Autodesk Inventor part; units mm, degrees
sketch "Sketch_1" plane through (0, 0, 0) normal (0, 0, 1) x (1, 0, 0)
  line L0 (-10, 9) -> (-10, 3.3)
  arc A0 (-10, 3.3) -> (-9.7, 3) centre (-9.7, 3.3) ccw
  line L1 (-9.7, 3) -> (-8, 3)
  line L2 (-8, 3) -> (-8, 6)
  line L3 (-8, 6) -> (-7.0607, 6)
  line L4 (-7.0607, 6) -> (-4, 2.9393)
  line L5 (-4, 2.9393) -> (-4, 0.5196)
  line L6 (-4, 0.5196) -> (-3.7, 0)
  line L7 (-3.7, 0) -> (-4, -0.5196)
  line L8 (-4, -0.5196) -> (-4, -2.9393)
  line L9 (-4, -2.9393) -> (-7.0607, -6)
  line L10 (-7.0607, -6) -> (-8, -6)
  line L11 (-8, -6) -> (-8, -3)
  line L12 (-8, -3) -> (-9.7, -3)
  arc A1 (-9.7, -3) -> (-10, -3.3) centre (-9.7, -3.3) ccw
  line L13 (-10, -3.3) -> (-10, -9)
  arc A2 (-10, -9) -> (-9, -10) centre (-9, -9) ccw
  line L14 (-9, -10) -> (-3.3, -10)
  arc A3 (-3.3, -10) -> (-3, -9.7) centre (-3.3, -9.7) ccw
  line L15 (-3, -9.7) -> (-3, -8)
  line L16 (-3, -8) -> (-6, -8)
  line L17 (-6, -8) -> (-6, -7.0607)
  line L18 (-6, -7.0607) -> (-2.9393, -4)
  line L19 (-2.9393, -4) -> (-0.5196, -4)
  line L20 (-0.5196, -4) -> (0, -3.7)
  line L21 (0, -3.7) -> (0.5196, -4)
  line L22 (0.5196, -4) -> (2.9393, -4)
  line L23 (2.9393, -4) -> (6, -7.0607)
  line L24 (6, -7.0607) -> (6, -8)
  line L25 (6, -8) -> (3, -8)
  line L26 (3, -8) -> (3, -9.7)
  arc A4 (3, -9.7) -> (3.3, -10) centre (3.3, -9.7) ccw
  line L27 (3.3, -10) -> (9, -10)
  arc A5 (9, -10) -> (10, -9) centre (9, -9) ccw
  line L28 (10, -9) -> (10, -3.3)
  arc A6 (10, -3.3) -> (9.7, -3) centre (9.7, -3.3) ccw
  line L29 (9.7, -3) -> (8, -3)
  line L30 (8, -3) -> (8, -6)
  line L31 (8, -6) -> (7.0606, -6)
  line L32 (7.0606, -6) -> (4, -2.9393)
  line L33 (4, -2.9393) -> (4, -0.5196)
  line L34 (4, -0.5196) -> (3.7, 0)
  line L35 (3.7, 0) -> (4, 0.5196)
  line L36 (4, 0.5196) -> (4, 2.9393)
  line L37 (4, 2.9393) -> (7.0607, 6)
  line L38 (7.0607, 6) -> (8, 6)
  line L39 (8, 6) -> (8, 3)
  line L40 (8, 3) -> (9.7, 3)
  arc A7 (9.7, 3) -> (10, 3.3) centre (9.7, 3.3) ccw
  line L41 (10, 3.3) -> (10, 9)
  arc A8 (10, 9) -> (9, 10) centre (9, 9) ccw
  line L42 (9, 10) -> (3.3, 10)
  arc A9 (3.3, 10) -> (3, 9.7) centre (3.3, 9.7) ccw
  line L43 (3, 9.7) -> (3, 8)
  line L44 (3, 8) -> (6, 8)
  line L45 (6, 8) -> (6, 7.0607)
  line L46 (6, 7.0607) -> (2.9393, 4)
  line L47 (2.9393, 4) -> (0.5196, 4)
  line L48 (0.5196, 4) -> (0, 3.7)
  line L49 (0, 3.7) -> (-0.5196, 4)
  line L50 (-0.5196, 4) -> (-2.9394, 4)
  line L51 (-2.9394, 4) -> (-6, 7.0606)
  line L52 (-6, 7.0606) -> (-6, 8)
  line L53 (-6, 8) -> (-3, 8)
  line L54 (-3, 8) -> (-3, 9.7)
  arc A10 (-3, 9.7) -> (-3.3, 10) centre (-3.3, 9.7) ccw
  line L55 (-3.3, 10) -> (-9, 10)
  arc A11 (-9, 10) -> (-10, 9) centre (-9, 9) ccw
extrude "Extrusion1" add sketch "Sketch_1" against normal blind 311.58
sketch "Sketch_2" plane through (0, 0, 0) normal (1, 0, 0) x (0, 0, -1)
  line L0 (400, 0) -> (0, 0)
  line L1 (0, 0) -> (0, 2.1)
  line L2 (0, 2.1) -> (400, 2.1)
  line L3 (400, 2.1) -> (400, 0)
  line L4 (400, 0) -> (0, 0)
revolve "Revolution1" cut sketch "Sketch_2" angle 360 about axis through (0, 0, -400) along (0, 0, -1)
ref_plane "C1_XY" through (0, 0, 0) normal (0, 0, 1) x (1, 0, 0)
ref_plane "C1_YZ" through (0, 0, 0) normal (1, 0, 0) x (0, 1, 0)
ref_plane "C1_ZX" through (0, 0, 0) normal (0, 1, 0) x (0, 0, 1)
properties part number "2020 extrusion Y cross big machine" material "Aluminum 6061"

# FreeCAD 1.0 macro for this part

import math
import FreeCAD as App
import Part
import Sketcher
from FreeCAD import Vector
Q = App.Units.Quantity

doc = App.newDocument("Part")
body = doc.addObject("PartDesign::Body", "Body")

sketch1 = doc.addObject("Sketcher::SketchObject", "Sketch")
body.addObject(sketch1)
sketch1.AttachmentSupport = (doc.XY_Plane, [""])
sketch1.MapMode = "FlatFace"
sketch1.addGeometry(Part.ArcOfCircle(Part.Circle(Vector(-9, 9, 0), Vector(0, 0, 1), 1), math.radians(90), math.radians(180)), False)
sketch1.addGeometry(Part.LineSegment(Vector(-10, 9, 0), Vector(-10, 3.3, 0)), False)
sketch1.addGeometry(Part.ArcOfCircle(Part.Circle(Vector(-9.7, 3.3, 0), Vector(0, 0, 1), 0.3), math.radians(180), math.radians(270)), False)
sketch1.addGeometry(Part.LineSegment(Vector(-9.7, 3, 0), Vector(-8, 3, 0)), False)
sketch1.addGeometry(Part.LineSegment(Vector(-8, 3, 0), Vector(-8, 6, 0)), False)
sketch1.addGeometry(Part.LineSegment(Vector(-8, 6, 0), Vector(-7.06, 6, 0)), False)
sketch1.addGeometry(Part.LineSegment(Vector(-7.06, 6, 0), Vector(-4, 2.94, 0)), False)
sketch1.addGeometry(Part.LineSegment(Vector(-4, 2.94, 0), Vector(-4, 0.52, 0)), False)
sketch1.addGeometry(Part.LineSegment(Vector(-4, 0.52, 0), Vector(-3.7, 0, 0)), False)
sketch1.addGeometry(Part.LineSegment(Vector(-3.7, 0, 0), Vector(-4, -0.52, 0)), False)
sketch1.addGeometry(Part.LineSegment(Vector(-4, -0.52, 0), Vector(-4, -2.94, 0)), False)
sketch1.addGeometry(Part.LineSegment(Vector(-4, -2.94, 0), Vector(-7.06, -6, 0)), False)
sketch1.addGeometry(Part.LineSegment(Vector(-7.06, -6, 0), Vector(-8, -6, 0)), False)
sketch1.addGeometry(Part.LineSegment(Vector(-8, -6, 0), Vector(-8, -3, 0)), False)
sketch1.addGeometry(Part.LineSegment(Vector(-8, -3, 0), Vector(-9.7, -3, 0)), False)
sketch1.addGeometry(Part.ArcOfCircle(Part.Circle(Vector(-9.7, -3.3, 0), Vector(0, 0, 1), 0.3), math.radians(90), math.radians(180)), False)
sketch1.addGeometry(Part.LineSegment(Vector(-10, -3.3, 0), Vector(-10, -9, 0)), False)
sketch1.addGeometry(Part.ArcOfCircle(Part.Circle(Vector(-9, -9, 0), Vector(0, 0, 1), 1), math.radians(180), math.radians(270)), False)
sketch1.addGeometry(Part.LineSegment(Vector(-9, -10, 0), Vector(-3.3, -10, 0)), False)
sketch1.addGeometry(Part.ArcOfCircle(Part.Circle(Vector(-3.3, -9.7, 0), Vector(0, 0, 1), 0.3), math.radians(-90), math.radians(0)), False)
sketch1.addGeometry(Part.LineSegment(Vector(-3, -9.7, 0), Vector(-3, -8, 0)), False)
sketch1.addGeometry(Part.LineSegment(Vector(-3, -8, 0), Vector(-6, -8, 0)), False)
sketch1.addGeometry(Part.LineSegment(Vector(-6, -8, 0), Vector(-6, -7.06, 0)), False)
sketch1.addGeometry(Part.LineSegment(Vector(-6, -7.06, 0), Vector(-2.94, -4, 0)), False)
sketch1.addGeometry(Part.LineSegment(Vector(-2.94, -4, 0), Vector(-0.52, -4, 0)), False)
sketch1.addGeometry(Part.LineSegment(Vector(-0.52, -4, 0), Vector(0, -3.7, 0)), False)
sketch1.addGeometry(Part.LineSegment(Vector(0, -3.7, 0), Vector(0.52, -4, 0)), False)
sketch1.addGeometry(Part.LineSegment(Vector(0.52, -4, 0), Vector(2.94, -4, 0)), False)
sketch1.addGeometry(Part.LineSegment(Vector(2.94, -4, 0), Vector(6, -7.06, 0)), False)
sketch1.addGeometry(Part.LineSegment(Vector(6, -7.06, 0), Vector(6, -8, 0)), False)
sketch1.addGeometry(Part.LineSegment(Vector(6, -8, 0), Vector(3, -8, 0)), False)
sketch1.addGeometry(Part.LineSegment(Vector(3, -8, 0), Vector(3, -9.7, 0)), False)
sketch1.addGeometry(Part.ArcOfCircle(Part.Circle(Vector(3.3, -9.7, 0), Vector(0, 0, 1), 0.3), math.radians(180), math.radians(270)), False)
sketch1.addGeometry(Part.LineSegment(Vector(3.3, -10, 0), Vector(9, -10, 0)), False)
sketch1.addGeometry(Part.ArcOfCircle(Part.Circle(Vector(9, -9, 0), Vector(0, 0, 1), 1), math.radians(-90), math.radians(0)), False)
sketch1.addGeometry(Part.LineSegment(Vector(10, -9, 0), Vector(10, -3.3, 0)), False)
sketch1.addGeometry(Part.ArcOfCircle(Part.Circle(Vector(9.7, -3.3, 0), Vector(0, 0, 1), 0.3), math.radians(0), math.radians(90)), False)
sketch1.addGeometry(Part.LineSegment(Vector(9.7, -3, 0), Vector(8, -3, 0)), False)
sketch1.addGeometry(Part.LineSegment(Vector(8, -3, 0), Vector(8, -6, 0)), False)
sketch1.addGeometry(Part.LineSegment(Vector(8, -6, 0), Vector(7.06, -6, 0)), False)
sketch1.addGeometry(Part.LineSegment(Vector(7.06, -6, 0), Vector(4, -2.94, 0)), False)
sketch1.addGeometry(Part.LineSegment(Vector(4, -2.94, 0), Vector(4, -0.52, 0)), False)
sketch1.addGeometry(Part.LineSegment(Vector(4, -0.52, 0), Vector(3.7, 0, 0)), False)
sketch1.addGeometry(Part.LineSegment(Vector(3.7, 0, 0), Vector(4, 0.52, 0)), False)
sketch1.addGeometry(Part.LineSegment(Vector(4, 0.52, 0), Vector(4, 2.94, 0)), False)
sketch1.addGeometry(Part.LineSegment(Vector(4, 2.94, 0), Vector(7.06, 6, 0)), False)
sketch1.addGeometry(Part.LineSegment(Vector(7.06, 6, 0), Vector(8, 6, 0)), False)
sketch1.addGeometry(Part.LineSegment(Vector(8, 6, 0), Vector(8, 3, 0)), False)
sketch1.addGeometry(Part.LineSegment(Vector(8, 3, 0), Vector(9.7, 3, 0)), False)
sketch1.addGeometry(Part.ArcOfCircle(Part.Circle(Vector(9.7, 3.3, 0), Vector(0, 0, 1), 0.3), math.radians(-90), math.radians(0)), False)
sketch1.addGeometry(Part.LineSegment(Vector(10, 3.3, 0), Vector(10, 9, 0)), False)
sketch1.addGeometry(Part.ArcOfCircle(Part.Circle(Vector(9, 9, 0), Vector(0, 0, 1), 1), math.radians(0), math.radians(90)), False)
sketch1.addGeometry(Part.LineSegment(Vector(9, 10, 0), Vector(3.3, 10, 0)), False)
sketch1.addGeometry(Part.ArcOfCircle(Part.Circle(Vector(3.3, 9.7, 0), Vector(0, 0, 1), 0.3), math.radians(90), math.radians(180)), False)
sketch1.addGeometry(Part.LineSegment(Vector(3, 9.7, 0), Vector(3, 8, 0)), False)
sketch1.addGeometry(Part.LineSegment(Vector(3, 8, 0), Vector(6, 8, 0)), False)
sketch1.addGeometry(Part.LineSegment(Vector(6, 8, 0), Vector(6, 7.06, 0)), False)
sketch1.addGeometry(Part.LineSegment(Vector(6, 7.06, 0), Vector(2.94, 4, 0)), False)
sketch1.addGeometry(Part.LineSegment(Vector(2.94, 4, 0), Vector(0.52, 4, 0)), False)
sketch1.addGeometry(Part.LineSegment(Vector(0.52, 4, 0), Vector(0, 3.7, 0)), False)
sketch1.addGeometry(Part.LineSegment(Vector(0, 3.7, 0), Vector(-0.52, 4, 0)), False)
sketch1.addGeometry(Part.LineSegment(Vector(-0.52, 4, 0), Vector(-2.94, 4, 0)), False)
sketch1.addGeometry(Part.LineSegment(Vector(-2.94, 4, 0), Vector(-6, 7.06, 0)), False)
sketch1.addGeometry(Part.LineSegment(Vector(-6, 7.06, 0), Vector(-6, 8, 0)), False)
sketch1.addGeometry(Part.LineSegment(Vector(-6, 8, 0), Vector(-3, 8, 0)), False)
sketch1.addGeometry(Part.LineSegment(Vector(-3, 8, 0), Vector(-3, 9.7, 0)), False)
sketch1.addGeometry(Part.ArcOfCircle(Part.Circle(Vector(-3.3, 9.7, 0), Vector(0, 0, 1), 0.3), math.radians(0), math.radians(90)), False)
sketch1.addGeometry(Part.LineSegment(Vector(-3.3, 10, 0), Vector(-9, 10, 0)), False)
sketch1.addConstraint(Sketcher.Constraint("Tangent", 0, 2, 1, 1))
sketch1.addConstraint(Sketcher.Constraint("Tangent", 1, 2, 2, 1))
sketch1.addConstraint(Sketcher.Constraint("Tangent", 2, 2, 3, 1))
sketch1.addConstraint(Sketcher.Constraint("Coincident", 3, 2, 4, 1))
sketch1.addConstraint(Sketcher.Constraint("Coincident", 4, 2, 5, 1))
sketch1.addConstraint(Sketcher.Constraint("Coincident", 5, 2, 6, 1))
sketch1.addConstraint(Sketcher.Constraint("Coincident", 6, 2, 7, 1))
sketch1.addConstraint(Sketcher.Constraint("Coincident", 7, 2, 8, 1))
sketch1.addConstraint(Sketcher.Constraint("Coincident", 8, 2, 9, 1))
sketch1.addConstraint(Sketcher.Constraint("Coincident", 9, 2, 10, 1))
sketch1.addConstraint(Sketcher.Constraint("Coincident", 10, 2, 11, 1))
sketch1.addConstraint(Sketcher.Constraint("Coincident", 11, 2, 12, 1))
sketch1.addConstraint(Sketcher.Constraint("Coincident", 12, 2, 13, 1))
sketch1.addConstraint(Sketcher.Constraint("Coincident", 13, 2, 14, 1))
sketch1.addConstraint(Sketcher.Constraint("Tangent", 14, 2, 15, 1))
sketch1.addConstraint(Sketcher.Constraint("Tangent", 15, 2, 16, 1))
sketch1.addConstraint(Sketcher.Constraint("Tangent", 16, 2, 17, 1))
sketch1.addConstraint(Sketcher.Constraint("Tangent", 17, 2, 18, 1))
sketch1.addConstraint(Sketcher.Constraint("Tangent", 18, 2, 19, 1))
sketch1.addConstraint(Sketcher.Constraint("Tangent", 19, 2, 20, 1))
sketch1.addConstraint(Sketcher.Constraint("Coincident", 20, 2, 21, 1))
sketch1.addConstraint(Sketcher.Constraint("Coincident", 21, 2, 22, 1))
sketch1.addConstraint(Sketcher.Constraint("Coincident", 22, 2, 23, 1))
sketch1.addConstraint(Sketcher.Constraint("Coincident", 23, 2, 24, 1))
sketch1.addConstraint(Sketcher.Constraint("Coincident", 24, 2, 25, 1))
sketch1.addConstraint(Sketcher.Constraint("Coincident", 25, 2, 26, 1))
sketch1.addConstraint(Sketcher.Constraint("Coincident", 26, 2, 27, 1))
sketch1.addConstraint(Sketcher.Constraint("Coincident", 27, 2, 28, 1))
sketch1.addConstraint(Sketcher.Constraint("Coincident", 28, 2, 29, 1))
sketch1.addConstraint(Sketcher.Constraint("Coincident", 29, 2, 30, 1))
sketch1.addConstraint(Sketcher.Constraint("Coincident", 30, 2, 31, 1))
sketch1.addConstraint(Sketcher.Constraint("Tangent", 31, 2, 32, 1))
sketch1.addConstraint(Sketcher.Constraint("Tangent", 32, 2, 33, 1))
sketch1.addConstraint(Sketcher.Constraint("Tangent", 33, 2, 34, 1))
sketch1.addConstraint(Sketcher.Constraint("Tangent", 34, 2, 35, 1))
sketch1.addConstraint(Sketcher.Constraint("Tangent", 35, 2, 36, 1))
sketch1.addConstraint(Sketcher.Constraint("Tangent", 36, 2, 37, 1))
sketch1.addConstraint(Sketcher.Constraint("Coincident", 37, 2, 38, 1))
sketch1.addConstraint(Sketcher.Constraint("Coincident", 38, 2, 39, 1))
sketch1.addConstraint(Sketcher.Constraint("Coincident", 39, 2, 40, 1))
sketch1.addConstraint(Sketcher.Constraint("Coincident", 40, 2, 41, 1))
sketch1.addConstraint(Sketcher.Constraint("Coincident", 41, 2, 42, 1))
sketch1.addConstraint(Sketcher.Constraint("Coincident", 42, 2, 43, 1))
sketch1.addConstraint(Sketcher.Constraint("Coincident", 43, 2, 44, 1))
sketch1.addConstraint(Sketcher.Constraint("Coincident", 44, 2, 45, 1))
sketch1.addConstraint(Sketcher.Constraint("Coincident", 45, 2, 46, 1))
sketch1.addConstraint(Sketcher.Constraint("Coincident", 46, 2, 47, 1))
sketch1.addConstraint(Sketcher.Constraint("Coincident", 47, 2, 48, 1))
sketch1.addConstraint(Sketcher.Constraint("Tangent", 48, 2, 49, 1))
sketch1.addConstraint(Sketcher.Constraint("Tangent", 49, 2, 50, 1))
sketch1.addConstraint(Sketcher.Constraint("Tangent", 50, 2, 51, 1))
sketch1.addConstraint(Sketcher.Constraint("Tangent", 51, 2, 52, 1))
sketch1.addConstraint(Sketcher.Constraint("Tangent", 52, 2, 53, 1))
sketch1.addConstraint(Sketcher.Constraint("Tangent", 53, 2, 54, 1))
sketch1.addConstraint(Sketcher.Constraint("Coincident", 54, 2, 55, 1))
sketch1.addConstraint(Sketcher.Constraint("Coincident", 55, 2, 56, 1))
sketch1.addConstraint(Sketcher.Constraint("Coincident", 56, 2, 57, 1))
sketch1.addConstraint(Sketcher.Constraint("Coincident", 57, 2, 58, 1))
sketch1.addConstraint(Sketcher.Constraint("Coincident", 58, 2, 59, 1))
sketch1.addConstraint(Sketcher.Constraint("Coincident", 59, 2, 60, 1))
sketch1.addConstraint(Sketcher.Constraint("Coincident", 60, 2, 61, 1))
sketch1.addConstraint(Sketcher.Constraint("Coincident", 61, 2, 62, 1))
sketch1.addConstraint(Sketcher.Constraint("Coincident", 62, 2, 63, 1))
sketch1.addConstraint(Sketcher.Constraint("Coincident", 63, 2, 64, 1))
sketch1.addConstraint(Sketcher.Constraint("Coincident", 64, 2, 65, 1))
sketch1.addConstraint(Sketcher.Constraint("Tangent", 65, 2, 66, 1))
sketch1.addConstraint(Sketcher.Constraint("Tangent", 66, 2, 67, 1))
sketch1.addConstraint(Sketcher.Constraint("Tangent", 67, 2, 0, 1))
sketch1.addConstraint(Sketcher.Constraint("Vertical", 1))
sketch1.addConstraint(Sketcher.Constraint("Horizontal", 3))
sketch1.addConstraint(Sketcher.Constraint("Vertical", 4))
sketch1.addConstraint(Sketcher.Constraint("Horizontal", 5))
sketch1.addConstraint(Sketcher.Constraint("Vertical", 7))
sketch1.addConstraint(Sketcher.Constraint("Vertical", 10))
sketch1.addConstraint(Sketcher.Constraint("Horizontal", 12))
sketch1.addConstraint(Sketcher.Constraint("Vertical", 13))
sketch1.addConstraint(Sketcher.Constraint("Horizontal", 14))
sketch1.addConstraint(Sketcher.Constraint("Vertical", 16))
sketch1.addConstraint(Sketcher.Constraint("Horizontal", 18))
sketch1.addConstraint(Sketcher.Constraint("Vertical", 20))
sketch1.addConstraint(Sketcher.Constraint("Horizontal", 21))
sketch1.addConstraint(Sketcher.Constraint("Vertical", 22))
sketch1.addConstraint(Sketcher.Constraint("Horizontal", 24))
sketch1.addConstraint(Sketcher.Constraint("Horizontal", 27))
sketch1.addConstraint(Sketcher.Constraint("Vertical", 29))
sketch1.addConstraint(Sketcher.Constraint("Horizontal", 30))
sketch1.addConstraint(Sketcher.Constraint("Vertical", 31))
sketch1.addConstraint(Sketcher.Constraint("Horizontal", 33))
sketch1.addConstraint(Sketcher.Constraint("Vertical", 35))
sketch1.addConstraint(Sketcher.Constraint("Horizontal", 37))
sketch1.addConstraint(Sketcher.Constraint("Vertical", 38))
sketch1.addConstraint(Sketcher.Constraint("Horizontal", 39))
sketch1.addConstraint(Sketcher.Constraint("Vertical", 41))
sketch1.addConstraint(Sketcher.Constraint("Vertical", 44))
sketch1.addConstraint(Sketcher.Constraint("Horizontal", 46))
sketch1.addConstraint(Sketcher.Constraint("Vertical", 47))
sketch1.addConstraint(Sketcher.Constraint("Horizontal", 48))
sketch1.addConstraint(Sketcher.Constraint("Vertical", 50))
sketch1.addConstraint(Sketcher.Constraint("Horizontal", 52))
sketch1.addConstraint(Sketcher.Constraint("Vertical", 54))
sketch1.addConstraint(Sketcher.Constraint("Horizontal", 55))
sketch1.addConstraint(Sketcher.Constraint("Vertical", 56))
sketch1.addConstraint(Sketcher.Constraint("Horizontal", 58))
sketch1.addConstraint(Sketcher.Constraint("Horizontal", 61))
sketch1.addConstraint(Sketcher.Constraint("Vertical", 63))
sketch1.addConstraint(Sketcher.Constraint("Horizontal", 64))
sketch1.addConstraint(Sketcher.Constraint("Vertical", 65))
sketch1.addConstraint(Sketcher.Constraint("Horizontal", 67))
sketch1.addConstraint(Sketcher.Constraint("Equal", 2, 15))
sketch1.addConstraint(Sketcher.Constraint("Equal", 0, 17))
sketch1.addConstraint(Sketcher.Constraint("Equal", 15, 19))
sketch1.addConstraint(Sketcher.Constraint("Equal", 19, 32))
sketch1.addConstraint(Sketcher.Constraint("Equal", 17, 34))
sketch1.addConstraint(Sketcher.Constraint("Equal", 32, 36))
sketch1.addConstraint(Sketcher.Constraint("Equal", 36, 49))
sketch1.addConstraint(Sketcher.Constraint("Equal", 34, 51))
sketch1.addConstraint(Sketcher.Constraint("Equal", 49, 53))
sketch1.addConstraint(Sketcher.Constraint("Equal", 53, 66))
sketch1.addConstraint(Sketcher.Constraint("Symmetric", 0, 3, 34, 3, -1, 1))
sketch1.addConstraint(Sketcher.Constraint("Symmetric", 15, 3, 49, 3, -1, 1))
sketch1.addConstraint(Sketcher.Constraint("Symmetric", 19, 3, 53, 3, -1, 1))
sketch1.addConstraint(Sketcher.Constraint("Symmetric", 3, 2, 37, 2, -1, 1))
sketch1.addConstraint(Sketcher.Constraint("Symmetric", 5, 2, 39, 2, -1, 1))
sketch1.addConstraint(Sketcher.Constraint("Symmetric", 6, 2, 40, 2, -1, 1))
sketch1.addConstraint(Sketcher.Constraint("Symmetric", 8, 2, 42, 2, -1, 1))
sketch1.addConstraint(Sketcher.Constraint("Symmetric", 9, 2, 43, 2, -1, 1))
sketch1.addConstraint(Sketcher.Constraint("Symmetric", 11, 2, 45, 2, -1, 1))
sketch1.addConstraint(Sketcher.Constraint("Symmetric", 21, 2, 55, 2, -1, 1))
sketch1.addConstraint(Sketcher.Constraint("Symmetric", 23, 2, 57, 2, -1, 1))
sketch1.addConstraint(Sketcher.Constraint("Symmetric", 25, 2, 59, 2, -1, 1))
sketch1.addConstraint(Sketcher.Constraint("Symmetric", 26, 2, 60, 2, -1, 1))
sketch1.addConstraint(Sketcher.Constraint("Symmetric", 28, 2, 62, 2, -1, 1))
sketch1.addConstraint(Sketcher.Constraint("Symmetric", 30, 2, 64, 2, -1, 1))
sketch1.addConstraint(Sketcher.Constraint("Symmetric", 19, 3, 32, 3, -2))
sketch1.addConstraint(Sketcher.Constraint("Symmetric", 15, 3, 36, 3, -2))
sketch1.addConstraint(Sketcher.Constraint("Symmetric", 24, 2, 26, 2, -2))
sketch1.addConstraint(Sketcher.Constraint("Symmetric", 22, 2, 28, 2, -2))
sketch1.addConstraint(Sketcher.Constraint("Symmetric", 12, 2, 38, 2, -2))
sketch1.addConstraint(Sketcher.Constraint("Symmetric", 10, 2, 40, 2, -2))
sketch1.addConstraint(Sketcher.Constraint("PointOnObject", 8, 2, -1))
sketch1.addConstraint(Sketcher.Constraint("PointOnObject", 25, 2, -2))
sketch1.addConstraint(Sketcher.Constraint("Perpendicular", 6, 11))
sketch1.addConstraint(Sketcher.Constraint("Parallel", 11, 23))
sketch1.addConstraint(Sketcher.Constraint("Perpendicular", 8, 25))
sketch1.addConstraint(Sketcher.Constraint("Perpendicular", 9, 26))
sketch1.addConstraint(Sketcher.Constraint("Perpendicular", 23, 28))
sketch1.addConstraint(Sketcher.Constraint("Perpendicular", 25, 42))
sketch1.addConstraint(Sketcher.Constraint("Perpendicular", 40, 45))
sketch1.addConstraint(Sketcher.Constraint("Parallel", 45, 57))
sketch1.addConstraint(Sketcher.Constraint("Perpendicular", 42, 59))
sketch1.addConstraint(Sketcher.Constraint("Perpendicular", 57, 62))
sketch1.addConstraint(Sketcher.Constraint("Horizontal", 21, 2, 29, 2))
sketch1.addConstraint(Sketcher.Constraint("Vertical", 5, 2, 11, 2))
sketch1.addConstraint(Sketcher.Constraint("Vertical", 38, 2, 46, 2))
sketch1.addConstraint(Sketcher.Constraint("Equal", 67, 1))
sketch1.addConstraint(Sketcher.Constraint("Equal", 64, 4))
sketch1.addConstraint(Sketcher.Constraint("Equal", 61, 7))
sketch1.addConstraint(Sketcher.Constraint("Equal", 48, 20))
sketch1.addConstraint(Sketcher.Constraint("Equal", 46, 22))
sketch1.addConstraint(Sketcher.Constraint("Equal", 11, 23))
sketch1.addConstraint(Sketcher.Constraint("Equal", 9, 25))
sketch1.addConstraint(Sketcher.Constraint("Radius", 0, 1.0))
sketch1.addConstraint(Sketcher.Constraint("Radius", 2, 0.3))
sketch1.addConstraint(Sketcher.Constraint("DistanceX", 21, 2, 21, 1, 3.0))
sketch1.addConstraint(Sketcher.Constraint("Angle", 8, Q("-59.9993 deg")))
sketch1.addConstraint(Sketcher.Constraint("DistanceX", 3, 1, 3, 2, 1.7))
sketch1.addConstraint(Sketcher.Constraint("DistanceX", 18, 1, 18, 2, 5.7))
sketch1.addConstraint(Sketcher.Constraint("DistanceX", 0, 3, -1, 1, 9.0))
sketch1.addConstraint(Sketcher.Constraint("DistanceX", 6, 2, -1, 1, 4.0))
sketch1.addConstraint(Sketcher.Constraint("Distance", 8, 0.6))
sketch1.addConstraint(Sketcher.Constraint("DistanceX", 5, 1, 5, 2, 0.9393))
pad1 = doc.addObject("PartDesign::Pad", "Pad")
body.addObject(pad1)
pad1.Profile = sketch1
pad1.Length = 311.58
pad1.Reversed = True

sketch2 = doc.addObject("Sketcher::SketchObject", "Sketch001")
body.addObject(sketch2)
sketch2.AttachmentSupport = (doc.YZ_Plane, [""])
sketch2.MapMode = "FlatFace"
sketch2.addGeometry(Part.LineSegment(Vector(0, 0, 0), Vector(0, -400, 0)), False)
sketch2.addGeometry(Part.LineSegment(Vector(0, -400, 0), Vector(2.1, -400, 0)), False)
sketch2.addGeometry(Part.LineSegment(Vector(2.1, -400, 0), Vector(2.1, 0, 0)), False)
sketch2.addGeometry(Part.LineSegment(Vector(2.1, 0, 0), Vector(0, 0, 0)), False)
sketch2.addConstraint(Sketcher.Constraint("Coincident", 0, 2, 1, 1))
sketch2.addConstraint(Sketcher.Constraint("Coincident", 1, 2, 2, 1))
sketch2.addConstraint(Sketcher.Constraint("Coincident", 2, 2, 3, 1))
sketch2.addConstraint(Sketcher.Constraint("Coincident", 3, 2, 0, 1))
sketch2.addConstraint(Sketcher.Constraint("Vertical", 0))
sketch2.addConstraint(Sketcher.Constraint("Horizontal", 1))
sketch2.addConstraint(Sketcher.Constraint("Vertical", 2))
sketch2.addConstraint(Sketcher.Constraint("Horizontal", 3))
sketch2.addConstraint(Sketcher.Constraint("Coincident", 3, 2, -1, 1))
sketch2.addConstraint(Sketcher.Constraint("DistanceY", 0, 2, 0, 1, 400.0))
sketch2.addConstraint(Sketcher.Constraint("DistanceX", 1, 1, 1, 2, 2.1))
groove = doc.addObject("PartDesign::Groove", "Groove")
body.addObject(groove)
groove.Profile = sketch2
groove.ReferenceAxis = (sketch2, ["V_Axis"])
groove.Angle = 360

doc.recompute()
